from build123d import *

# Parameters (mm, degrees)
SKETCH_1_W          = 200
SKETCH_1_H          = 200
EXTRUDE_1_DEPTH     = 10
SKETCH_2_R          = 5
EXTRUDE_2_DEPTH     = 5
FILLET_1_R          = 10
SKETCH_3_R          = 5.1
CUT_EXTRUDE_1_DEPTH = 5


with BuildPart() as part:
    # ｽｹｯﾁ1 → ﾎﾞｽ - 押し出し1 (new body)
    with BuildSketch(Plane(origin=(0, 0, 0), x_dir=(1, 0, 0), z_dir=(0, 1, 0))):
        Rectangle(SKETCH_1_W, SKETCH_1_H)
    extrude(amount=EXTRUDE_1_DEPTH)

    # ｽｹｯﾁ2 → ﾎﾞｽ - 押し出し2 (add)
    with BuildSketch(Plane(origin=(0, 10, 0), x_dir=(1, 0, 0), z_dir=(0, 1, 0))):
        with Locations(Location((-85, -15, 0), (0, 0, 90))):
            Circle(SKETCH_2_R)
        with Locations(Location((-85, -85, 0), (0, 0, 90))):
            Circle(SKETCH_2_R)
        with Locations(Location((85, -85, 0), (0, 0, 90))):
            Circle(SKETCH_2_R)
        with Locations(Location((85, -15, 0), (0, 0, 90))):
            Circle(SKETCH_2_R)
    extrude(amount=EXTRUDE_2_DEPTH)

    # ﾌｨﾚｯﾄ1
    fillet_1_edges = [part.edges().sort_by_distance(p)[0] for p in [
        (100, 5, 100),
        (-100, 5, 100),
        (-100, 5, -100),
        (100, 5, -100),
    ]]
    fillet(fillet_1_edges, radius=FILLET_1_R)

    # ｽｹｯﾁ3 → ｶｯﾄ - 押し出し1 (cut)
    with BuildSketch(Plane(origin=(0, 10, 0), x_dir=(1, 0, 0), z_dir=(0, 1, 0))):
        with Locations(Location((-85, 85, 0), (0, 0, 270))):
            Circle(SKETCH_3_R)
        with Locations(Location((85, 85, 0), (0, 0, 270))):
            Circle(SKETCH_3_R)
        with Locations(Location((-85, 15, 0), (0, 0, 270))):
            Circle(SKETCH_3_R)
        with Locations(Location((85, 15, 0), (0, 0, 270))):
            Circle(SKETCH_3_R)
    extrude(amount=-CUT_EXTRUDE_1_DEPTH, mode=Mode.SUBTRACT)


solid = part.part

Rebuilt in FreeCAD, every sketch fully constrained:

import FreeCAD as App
import Part
import Sketcher


def edges_at(feature, points):
    """Names of the edges that pass closest to the given points."""
    edges = feature.Shape.Edges
    near = lambda p: min(range(len(edges)), key=lambda i: edges[i].distToShape(Part.Vertex(*p))[0])
    return sorted({f"Edge{near(p) + 1}" for p in points})

doc = App.newDocument("Part")
body = doc.addObject("PartDesign::Body", "Body")

# Sketch on XZ plane
sketch1 = body.newObject("Sketcher::SketchObject", "Sketch")
sketch1.AttachmentSupport = (doc.getObject("XZ_Plane"), [""])
sketch1.MapMode = "FlatFace"
sketch1.addGeometry(Part.LineSegment(App.Vector(-100, -100, 0), App.Vector(-100, 100, 0)), False)
sketch1.addGeometry(Part.LineSegment(App.Vector(-100, 100, 0), App.Vector(100, 100, 0)), False)
sketch1.addGeometry(Part.LineSegment(App.Vector(100, 100, 0), App.Vector(100, -100, 0)), False)
sketch1.addGeometry(Part.LineSegment(App.Vector(100, -100, 0), App.Vector(-100, -100, 0)), False)
sketch1.addConstraint(Sketcher.Constraint("Coincident", 0, 2, 1, 1))
sketch1.addConstraint(Sketcher.Constraint("Coincident", 1, 2, 2, 1))
sketch1.addConstraint(Sketcher.Constraint("Coincident", 2, 2, 3, 1))
sketch1.addConstraint(Sketcher.Constraint("Coincident", 3, 2, 0, 1))
sketch1.addConstraint(Sketcher.Constraint("Vertical", 0))
sketch1.addConstraint(Sketcher.Constraint("Horizontal", 1))
sketch1.addConstraint(Sketcher.Constraint("Vertical", 2))
sketch1.addConstraint(Sketcher.Constraint("Horizontal", 3))
sketch1.addConstraint(Sketcher.Constraint("Symmetric", 0, 2, 2, 2, -1, 1))
sketch1.addConstraint(Sketcher.Constraint("Equal", 3, 0))
sketch1.addConstraint(Sketcher.Constraint("DistanceX", 1, 1, 1, 2, 200.0))
pad1 = body.newObject("PartDesign::Pad", "Pad")
pad1.Profile = sketch1
pad1.Length = 10
pad1.Reversed = True

# Sketch on XZ plane
sketch2 = body.newObject("Sketcher::SketchObject", "Sketch001")
sketch2.AttachmentSupport = (doc.getObject("XZ_Plane"), [""])
sketch2.MapMode = "FlatFace"
sketch2.AttachmentOffset = App.Placement(App.Vector(0, 0, -10), App.Rotation())
sketch2.addGeometry(Part.Circle(App.Vector(-85, 15, 0), App.Vector(0, 0, 1), 5), False)
sketch2.addGeometry(Part.Circle(App.Vector(-85, 85, 0), App.Vector(0, 0, 1), 5), False)
sketch2.addGeometry(Part.Circle(App.Vector(85, 85, 0), App.Vector(0, 0, 1), 5), False)
sketch2.addGeometry(Part.Circle(App.Vector(85, 15, 0), App.Vector(0, 0, 1), 5), False)
sketch2.addConstraint(Sketcher.Constraint("Equal", 0, 1))
sketch2.addConstraint(Sketcher.Constraint("Equal", 1, 2))
sketch2.addConstraint(Sketcher.Constraint("Equal", 2, 3))
sketch2.addConstraint(Sketcher.Constraint("Symmetric", 1, 3, 2, 3, -2))
sketch2.addConstraint(Sketcher.Constraint("Symmetric", 0, 3, 3, 3, -2))
sketch2.addConstraint(Sketcher.Constraint("Vertical", 0, 3, 1, 3))
sketch2.addConstraint(Sketcher.Constraint("Diameter", 0, 10.0))
sketch2.addConstraint(Sketcher.Constraint("DistanceX", 0, 3, -1, 1, 85.0))
sketch2.addConstraint(Sketcher.Constraint("DistanceY", -1, 1, 0, 3, 15.0))
sketch2.addConstraint(Sketcher.Constraint("DistanceY", -1, 1, 1, 3, 85.0))
pad2 = body.newObject("PartDesign::Pad", "Pad001")
pad2.Profile = sketch2
pad2.Length = 5
pad2.Reversed = True
doc.recompute()

fillet = body.newObject("PartDesign::Fillet", "Fillet")
fillet.Base = (pad2, edges_at(pad2, [
    (100, 5, 100),
    (-100, 5, 100),
    (-100, 5, -100),
    (100, 5, -100),
]))
fillet.Radius = 10

# Sketch on XZ plane
sketch3 = body.newObject("Sketcher::SketchObject", "Sketch002")
sketch3.AttachmentSupport = (doc.getObject("XZ_Plane"), [""])
sketch3.MapMode = "FlatFace"
sketch3.AttachmentOffset = App.Placement(App.Vector(0, 0, -10), App.Rotation())
sketch3.addGeometry(Part.Circle(App.Vector(-85, -85, 0), App.Vector(0, 0, 1), 5), False)
sketch3.addGeometry(Part.Circle(App.Vector(85, -85, 0), App.Vector(0, 0, 1), 5), False)
sketch3.addGeometry(Part.Circle(App.Vector(-85, -15, 0), App.Vector(0, 0, 1), 5), False)
sketch3.addGeometry(Part.Circle(App.Vector(85, -15, 0), App.Vector(0, 0, 1), 5), False)
sketch3.addConstraint(Sketcher.Constraint("Equal", 0, 1))
sketch3.addConstraint(Sketcher.Constraint("Equal", 1, 2))
sketch3.addConstraint(Sketcher.Constraint("Equal", 2, 3))
sketch3.addConstraint(Sketcher.Constraint("Symmetric", 0, 3, 1, 3, -2))
sketch3.addConstraint(Sketcher.Constraint("Symmetric", 2, 3, 3, 3, -2))
sketch3.addConstraint(Sketcher.Constraint("Vertical", 0, 3, 2, 3))
sketch3.addConstraint(Sketcher.Constraint("Diameter", 0, 10.2))
sketch3.addConstraint(Sketcher.Constraint("DistanceX", 0, 3, -1, 1, 85.0))
sketch3.addConstraint(Sketcher.Constraint("DistanceY", 0, 3, -1, 1, 85.0))
sketch3.addConstraint(Sketcher.Constraint("DistanceY", 2, 3, -1, 1, 15.0))
pocket1 = body.newObject("PartDesign::Pocket", "Pocket")
pocket1.Profile = sketch3
pocket1.Length = 5
pocket1.Reversed = True

doc.recompute()
